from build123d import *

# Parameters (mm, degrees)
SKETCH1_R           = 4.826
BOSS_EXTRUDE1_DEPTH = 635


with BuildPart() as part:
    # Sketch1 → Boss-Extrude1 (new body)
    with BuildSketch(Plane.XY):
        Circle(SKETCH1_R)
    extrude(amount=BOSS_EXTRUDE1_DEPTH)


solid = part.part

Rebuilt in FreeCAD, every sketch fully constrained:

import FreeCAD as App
import Part
import Sketcher
from FreeCAD import Vector
Q = App.Units.Quantity

doc = App.newDocument("Part")
body = doc.addObject("PartDesign::Body", "Body")

# Sketch on XY plane
sketch1 = body.newObject("Sketcher::SketchObject", "Sketch")
sketch1.AttachmentSupport = (doc.getObject("XY_Plane"), [""])
sketch1.MapMode = "FlatFace"
sketch1.addGeometry(Part.Circle(Vector(0, 0, 0), Vector(0, 0, 1), 4.8), False)
sketch1.addConstraint([
    Sketcher.Constraint("Coincident", 0, 3, -1, 1),
    Sketcher.Constraint("Diameter", 0, Q("0.38 in")),
])
pad1 = body.newObject("PartDesign::Pad", "Pad")
pad1.Profile = sketch1
pad1.Length = Q("25 in")

doc.recompute()
